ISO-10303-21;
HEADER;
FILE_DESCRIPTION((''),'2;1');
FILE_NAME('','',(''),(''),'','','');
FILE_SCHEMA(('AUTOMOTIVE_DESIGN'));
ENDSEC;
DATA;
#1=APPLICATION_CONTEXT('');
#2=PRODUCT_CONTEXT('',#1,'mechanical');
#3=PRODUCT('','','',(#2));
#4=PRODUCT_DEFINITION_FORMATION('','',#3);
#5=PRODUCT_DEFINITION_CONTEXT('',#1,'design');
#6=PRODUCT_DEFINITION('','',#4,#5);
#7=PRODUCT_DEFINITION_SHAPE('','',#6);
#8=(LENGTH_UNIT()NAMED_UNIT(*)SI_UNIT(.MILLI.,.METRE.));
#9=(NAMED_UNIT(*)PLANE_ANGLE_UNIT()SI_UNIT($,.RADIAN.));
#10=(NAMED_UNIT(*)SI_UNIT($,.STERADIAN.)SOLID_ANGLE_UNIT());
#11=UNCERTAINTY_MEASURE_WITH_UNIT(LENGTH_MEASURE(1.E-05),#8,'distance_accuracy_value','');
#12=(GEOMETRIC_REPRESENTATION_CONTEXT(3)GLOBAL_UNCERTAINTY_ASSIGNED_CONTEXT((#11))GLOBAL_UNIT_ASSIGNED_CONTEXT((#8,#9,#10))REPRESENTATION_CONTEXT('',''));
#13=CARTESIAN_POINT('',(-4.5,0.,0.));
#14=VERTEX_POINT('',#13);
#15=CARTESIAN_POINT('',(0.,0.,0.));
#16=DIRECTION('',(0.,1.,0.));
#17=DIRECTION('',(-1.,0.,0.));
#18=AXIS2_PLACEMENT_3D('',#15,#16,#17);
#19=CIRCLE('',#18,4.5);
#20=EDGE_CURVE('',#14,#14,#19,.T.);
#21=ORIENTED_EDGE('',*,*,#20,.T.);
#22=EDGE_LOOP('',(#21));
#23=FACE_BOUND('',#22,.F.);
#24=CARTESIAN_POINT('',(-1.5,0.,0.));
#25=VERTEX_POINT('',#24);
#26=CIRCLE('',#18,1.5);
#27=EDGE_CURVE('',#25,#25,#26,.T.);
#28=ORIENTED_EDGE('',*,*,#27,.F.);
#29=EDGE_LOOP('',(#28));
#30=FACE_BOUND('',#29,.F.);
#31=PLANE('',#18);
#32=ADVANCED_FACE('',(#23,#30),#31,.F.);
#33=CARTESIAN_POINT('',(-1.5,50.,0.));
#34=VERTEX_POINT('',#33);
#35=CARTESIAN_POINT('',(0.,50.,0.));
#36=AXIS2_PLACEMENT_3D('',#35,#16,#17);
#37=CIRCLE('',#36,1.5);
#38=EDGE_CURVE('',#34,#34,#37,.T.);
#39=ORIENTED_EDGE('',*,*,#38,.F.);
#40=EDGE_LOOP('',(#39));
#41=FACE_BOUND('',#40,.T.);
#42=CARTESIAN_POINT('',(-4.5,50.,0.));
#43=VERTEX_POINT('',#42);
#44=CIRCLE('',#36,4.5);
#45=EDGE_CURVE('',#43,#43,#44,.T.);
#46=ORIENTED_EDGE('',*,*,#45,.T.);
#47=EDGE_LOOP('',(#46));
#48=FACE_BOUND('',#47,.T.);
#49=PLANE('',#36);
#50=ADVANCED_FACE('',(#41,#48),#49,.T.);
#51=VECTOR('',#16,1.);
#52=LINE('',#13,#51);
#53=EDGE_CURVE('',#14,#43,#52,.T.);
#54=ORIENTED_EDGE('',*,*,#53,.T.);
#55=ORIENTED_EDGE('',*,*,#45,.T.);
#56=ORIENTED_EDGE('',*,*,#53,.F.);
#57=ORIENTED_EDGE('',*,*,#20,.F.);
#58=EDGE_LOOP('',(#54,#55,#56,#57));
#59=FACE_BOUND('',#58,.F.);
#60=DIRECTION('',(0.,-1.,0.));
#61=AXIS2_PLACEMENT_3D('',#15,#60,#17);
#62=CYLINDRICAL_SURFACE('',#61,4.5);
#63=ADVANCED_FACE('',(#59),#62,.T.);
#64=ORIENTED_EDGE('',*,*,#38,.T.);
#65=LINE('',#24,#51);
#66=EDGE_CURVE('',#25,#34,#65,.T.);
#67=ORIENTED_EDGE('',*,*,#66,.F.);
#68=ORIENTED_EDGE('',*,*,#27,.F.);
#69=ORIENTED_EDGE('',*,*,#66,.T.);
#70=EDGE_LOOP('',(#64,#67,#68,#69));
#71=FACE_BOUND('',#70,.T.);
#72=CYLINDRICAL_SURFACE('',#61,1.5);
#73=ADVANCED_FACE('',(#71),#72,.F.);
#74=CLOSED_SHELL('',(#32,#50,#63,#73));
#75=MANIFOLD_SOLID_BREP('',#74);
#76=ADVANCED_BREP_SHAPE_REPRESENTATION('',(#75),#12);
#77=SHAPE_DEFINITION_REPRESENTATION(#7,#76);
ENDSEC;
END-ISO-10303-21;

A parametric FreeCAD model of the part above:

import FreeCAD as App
import Part
import Sketcher

V = App.Vector

doc = App.newDocument("Part")
body = doc.addObject("PartDesign::Body", "Body")

# Sketch on XZ plane
sketch1 = body.newObject("Sketcher::SketchObject", "Sketch")
sketch1.AttachmentSupport = (doc.getObject("XZ_Plane"), [""])
sketch1.MapMode = "FlatFace"
sketch1.addGeometry([
    Part.Circle(V(0, 0, 0), V(0, 0, 1), 4.5),
    Part.Circle(V(0, 0, 0), V(0, 0, 1), 1.5),
], False)
sketch1.addConstraint([
    Sketcher.Constraint("Coincident", 0, 3, -1, 1),
    Sketcher.Constraint("Coincident", 1, 3, -1, 1),
    Sketcher.Constraint("Diameter", 0, 9.0),
    Sketcher.Constraint("Diameter", 1, 3.0),
])
pad1 = body.newObject("PartDesign::Pad", "Pad")
pad1.Profile = sketch1
pad1.Length = 50
pad1.Reversed = True

doc.recompute()
